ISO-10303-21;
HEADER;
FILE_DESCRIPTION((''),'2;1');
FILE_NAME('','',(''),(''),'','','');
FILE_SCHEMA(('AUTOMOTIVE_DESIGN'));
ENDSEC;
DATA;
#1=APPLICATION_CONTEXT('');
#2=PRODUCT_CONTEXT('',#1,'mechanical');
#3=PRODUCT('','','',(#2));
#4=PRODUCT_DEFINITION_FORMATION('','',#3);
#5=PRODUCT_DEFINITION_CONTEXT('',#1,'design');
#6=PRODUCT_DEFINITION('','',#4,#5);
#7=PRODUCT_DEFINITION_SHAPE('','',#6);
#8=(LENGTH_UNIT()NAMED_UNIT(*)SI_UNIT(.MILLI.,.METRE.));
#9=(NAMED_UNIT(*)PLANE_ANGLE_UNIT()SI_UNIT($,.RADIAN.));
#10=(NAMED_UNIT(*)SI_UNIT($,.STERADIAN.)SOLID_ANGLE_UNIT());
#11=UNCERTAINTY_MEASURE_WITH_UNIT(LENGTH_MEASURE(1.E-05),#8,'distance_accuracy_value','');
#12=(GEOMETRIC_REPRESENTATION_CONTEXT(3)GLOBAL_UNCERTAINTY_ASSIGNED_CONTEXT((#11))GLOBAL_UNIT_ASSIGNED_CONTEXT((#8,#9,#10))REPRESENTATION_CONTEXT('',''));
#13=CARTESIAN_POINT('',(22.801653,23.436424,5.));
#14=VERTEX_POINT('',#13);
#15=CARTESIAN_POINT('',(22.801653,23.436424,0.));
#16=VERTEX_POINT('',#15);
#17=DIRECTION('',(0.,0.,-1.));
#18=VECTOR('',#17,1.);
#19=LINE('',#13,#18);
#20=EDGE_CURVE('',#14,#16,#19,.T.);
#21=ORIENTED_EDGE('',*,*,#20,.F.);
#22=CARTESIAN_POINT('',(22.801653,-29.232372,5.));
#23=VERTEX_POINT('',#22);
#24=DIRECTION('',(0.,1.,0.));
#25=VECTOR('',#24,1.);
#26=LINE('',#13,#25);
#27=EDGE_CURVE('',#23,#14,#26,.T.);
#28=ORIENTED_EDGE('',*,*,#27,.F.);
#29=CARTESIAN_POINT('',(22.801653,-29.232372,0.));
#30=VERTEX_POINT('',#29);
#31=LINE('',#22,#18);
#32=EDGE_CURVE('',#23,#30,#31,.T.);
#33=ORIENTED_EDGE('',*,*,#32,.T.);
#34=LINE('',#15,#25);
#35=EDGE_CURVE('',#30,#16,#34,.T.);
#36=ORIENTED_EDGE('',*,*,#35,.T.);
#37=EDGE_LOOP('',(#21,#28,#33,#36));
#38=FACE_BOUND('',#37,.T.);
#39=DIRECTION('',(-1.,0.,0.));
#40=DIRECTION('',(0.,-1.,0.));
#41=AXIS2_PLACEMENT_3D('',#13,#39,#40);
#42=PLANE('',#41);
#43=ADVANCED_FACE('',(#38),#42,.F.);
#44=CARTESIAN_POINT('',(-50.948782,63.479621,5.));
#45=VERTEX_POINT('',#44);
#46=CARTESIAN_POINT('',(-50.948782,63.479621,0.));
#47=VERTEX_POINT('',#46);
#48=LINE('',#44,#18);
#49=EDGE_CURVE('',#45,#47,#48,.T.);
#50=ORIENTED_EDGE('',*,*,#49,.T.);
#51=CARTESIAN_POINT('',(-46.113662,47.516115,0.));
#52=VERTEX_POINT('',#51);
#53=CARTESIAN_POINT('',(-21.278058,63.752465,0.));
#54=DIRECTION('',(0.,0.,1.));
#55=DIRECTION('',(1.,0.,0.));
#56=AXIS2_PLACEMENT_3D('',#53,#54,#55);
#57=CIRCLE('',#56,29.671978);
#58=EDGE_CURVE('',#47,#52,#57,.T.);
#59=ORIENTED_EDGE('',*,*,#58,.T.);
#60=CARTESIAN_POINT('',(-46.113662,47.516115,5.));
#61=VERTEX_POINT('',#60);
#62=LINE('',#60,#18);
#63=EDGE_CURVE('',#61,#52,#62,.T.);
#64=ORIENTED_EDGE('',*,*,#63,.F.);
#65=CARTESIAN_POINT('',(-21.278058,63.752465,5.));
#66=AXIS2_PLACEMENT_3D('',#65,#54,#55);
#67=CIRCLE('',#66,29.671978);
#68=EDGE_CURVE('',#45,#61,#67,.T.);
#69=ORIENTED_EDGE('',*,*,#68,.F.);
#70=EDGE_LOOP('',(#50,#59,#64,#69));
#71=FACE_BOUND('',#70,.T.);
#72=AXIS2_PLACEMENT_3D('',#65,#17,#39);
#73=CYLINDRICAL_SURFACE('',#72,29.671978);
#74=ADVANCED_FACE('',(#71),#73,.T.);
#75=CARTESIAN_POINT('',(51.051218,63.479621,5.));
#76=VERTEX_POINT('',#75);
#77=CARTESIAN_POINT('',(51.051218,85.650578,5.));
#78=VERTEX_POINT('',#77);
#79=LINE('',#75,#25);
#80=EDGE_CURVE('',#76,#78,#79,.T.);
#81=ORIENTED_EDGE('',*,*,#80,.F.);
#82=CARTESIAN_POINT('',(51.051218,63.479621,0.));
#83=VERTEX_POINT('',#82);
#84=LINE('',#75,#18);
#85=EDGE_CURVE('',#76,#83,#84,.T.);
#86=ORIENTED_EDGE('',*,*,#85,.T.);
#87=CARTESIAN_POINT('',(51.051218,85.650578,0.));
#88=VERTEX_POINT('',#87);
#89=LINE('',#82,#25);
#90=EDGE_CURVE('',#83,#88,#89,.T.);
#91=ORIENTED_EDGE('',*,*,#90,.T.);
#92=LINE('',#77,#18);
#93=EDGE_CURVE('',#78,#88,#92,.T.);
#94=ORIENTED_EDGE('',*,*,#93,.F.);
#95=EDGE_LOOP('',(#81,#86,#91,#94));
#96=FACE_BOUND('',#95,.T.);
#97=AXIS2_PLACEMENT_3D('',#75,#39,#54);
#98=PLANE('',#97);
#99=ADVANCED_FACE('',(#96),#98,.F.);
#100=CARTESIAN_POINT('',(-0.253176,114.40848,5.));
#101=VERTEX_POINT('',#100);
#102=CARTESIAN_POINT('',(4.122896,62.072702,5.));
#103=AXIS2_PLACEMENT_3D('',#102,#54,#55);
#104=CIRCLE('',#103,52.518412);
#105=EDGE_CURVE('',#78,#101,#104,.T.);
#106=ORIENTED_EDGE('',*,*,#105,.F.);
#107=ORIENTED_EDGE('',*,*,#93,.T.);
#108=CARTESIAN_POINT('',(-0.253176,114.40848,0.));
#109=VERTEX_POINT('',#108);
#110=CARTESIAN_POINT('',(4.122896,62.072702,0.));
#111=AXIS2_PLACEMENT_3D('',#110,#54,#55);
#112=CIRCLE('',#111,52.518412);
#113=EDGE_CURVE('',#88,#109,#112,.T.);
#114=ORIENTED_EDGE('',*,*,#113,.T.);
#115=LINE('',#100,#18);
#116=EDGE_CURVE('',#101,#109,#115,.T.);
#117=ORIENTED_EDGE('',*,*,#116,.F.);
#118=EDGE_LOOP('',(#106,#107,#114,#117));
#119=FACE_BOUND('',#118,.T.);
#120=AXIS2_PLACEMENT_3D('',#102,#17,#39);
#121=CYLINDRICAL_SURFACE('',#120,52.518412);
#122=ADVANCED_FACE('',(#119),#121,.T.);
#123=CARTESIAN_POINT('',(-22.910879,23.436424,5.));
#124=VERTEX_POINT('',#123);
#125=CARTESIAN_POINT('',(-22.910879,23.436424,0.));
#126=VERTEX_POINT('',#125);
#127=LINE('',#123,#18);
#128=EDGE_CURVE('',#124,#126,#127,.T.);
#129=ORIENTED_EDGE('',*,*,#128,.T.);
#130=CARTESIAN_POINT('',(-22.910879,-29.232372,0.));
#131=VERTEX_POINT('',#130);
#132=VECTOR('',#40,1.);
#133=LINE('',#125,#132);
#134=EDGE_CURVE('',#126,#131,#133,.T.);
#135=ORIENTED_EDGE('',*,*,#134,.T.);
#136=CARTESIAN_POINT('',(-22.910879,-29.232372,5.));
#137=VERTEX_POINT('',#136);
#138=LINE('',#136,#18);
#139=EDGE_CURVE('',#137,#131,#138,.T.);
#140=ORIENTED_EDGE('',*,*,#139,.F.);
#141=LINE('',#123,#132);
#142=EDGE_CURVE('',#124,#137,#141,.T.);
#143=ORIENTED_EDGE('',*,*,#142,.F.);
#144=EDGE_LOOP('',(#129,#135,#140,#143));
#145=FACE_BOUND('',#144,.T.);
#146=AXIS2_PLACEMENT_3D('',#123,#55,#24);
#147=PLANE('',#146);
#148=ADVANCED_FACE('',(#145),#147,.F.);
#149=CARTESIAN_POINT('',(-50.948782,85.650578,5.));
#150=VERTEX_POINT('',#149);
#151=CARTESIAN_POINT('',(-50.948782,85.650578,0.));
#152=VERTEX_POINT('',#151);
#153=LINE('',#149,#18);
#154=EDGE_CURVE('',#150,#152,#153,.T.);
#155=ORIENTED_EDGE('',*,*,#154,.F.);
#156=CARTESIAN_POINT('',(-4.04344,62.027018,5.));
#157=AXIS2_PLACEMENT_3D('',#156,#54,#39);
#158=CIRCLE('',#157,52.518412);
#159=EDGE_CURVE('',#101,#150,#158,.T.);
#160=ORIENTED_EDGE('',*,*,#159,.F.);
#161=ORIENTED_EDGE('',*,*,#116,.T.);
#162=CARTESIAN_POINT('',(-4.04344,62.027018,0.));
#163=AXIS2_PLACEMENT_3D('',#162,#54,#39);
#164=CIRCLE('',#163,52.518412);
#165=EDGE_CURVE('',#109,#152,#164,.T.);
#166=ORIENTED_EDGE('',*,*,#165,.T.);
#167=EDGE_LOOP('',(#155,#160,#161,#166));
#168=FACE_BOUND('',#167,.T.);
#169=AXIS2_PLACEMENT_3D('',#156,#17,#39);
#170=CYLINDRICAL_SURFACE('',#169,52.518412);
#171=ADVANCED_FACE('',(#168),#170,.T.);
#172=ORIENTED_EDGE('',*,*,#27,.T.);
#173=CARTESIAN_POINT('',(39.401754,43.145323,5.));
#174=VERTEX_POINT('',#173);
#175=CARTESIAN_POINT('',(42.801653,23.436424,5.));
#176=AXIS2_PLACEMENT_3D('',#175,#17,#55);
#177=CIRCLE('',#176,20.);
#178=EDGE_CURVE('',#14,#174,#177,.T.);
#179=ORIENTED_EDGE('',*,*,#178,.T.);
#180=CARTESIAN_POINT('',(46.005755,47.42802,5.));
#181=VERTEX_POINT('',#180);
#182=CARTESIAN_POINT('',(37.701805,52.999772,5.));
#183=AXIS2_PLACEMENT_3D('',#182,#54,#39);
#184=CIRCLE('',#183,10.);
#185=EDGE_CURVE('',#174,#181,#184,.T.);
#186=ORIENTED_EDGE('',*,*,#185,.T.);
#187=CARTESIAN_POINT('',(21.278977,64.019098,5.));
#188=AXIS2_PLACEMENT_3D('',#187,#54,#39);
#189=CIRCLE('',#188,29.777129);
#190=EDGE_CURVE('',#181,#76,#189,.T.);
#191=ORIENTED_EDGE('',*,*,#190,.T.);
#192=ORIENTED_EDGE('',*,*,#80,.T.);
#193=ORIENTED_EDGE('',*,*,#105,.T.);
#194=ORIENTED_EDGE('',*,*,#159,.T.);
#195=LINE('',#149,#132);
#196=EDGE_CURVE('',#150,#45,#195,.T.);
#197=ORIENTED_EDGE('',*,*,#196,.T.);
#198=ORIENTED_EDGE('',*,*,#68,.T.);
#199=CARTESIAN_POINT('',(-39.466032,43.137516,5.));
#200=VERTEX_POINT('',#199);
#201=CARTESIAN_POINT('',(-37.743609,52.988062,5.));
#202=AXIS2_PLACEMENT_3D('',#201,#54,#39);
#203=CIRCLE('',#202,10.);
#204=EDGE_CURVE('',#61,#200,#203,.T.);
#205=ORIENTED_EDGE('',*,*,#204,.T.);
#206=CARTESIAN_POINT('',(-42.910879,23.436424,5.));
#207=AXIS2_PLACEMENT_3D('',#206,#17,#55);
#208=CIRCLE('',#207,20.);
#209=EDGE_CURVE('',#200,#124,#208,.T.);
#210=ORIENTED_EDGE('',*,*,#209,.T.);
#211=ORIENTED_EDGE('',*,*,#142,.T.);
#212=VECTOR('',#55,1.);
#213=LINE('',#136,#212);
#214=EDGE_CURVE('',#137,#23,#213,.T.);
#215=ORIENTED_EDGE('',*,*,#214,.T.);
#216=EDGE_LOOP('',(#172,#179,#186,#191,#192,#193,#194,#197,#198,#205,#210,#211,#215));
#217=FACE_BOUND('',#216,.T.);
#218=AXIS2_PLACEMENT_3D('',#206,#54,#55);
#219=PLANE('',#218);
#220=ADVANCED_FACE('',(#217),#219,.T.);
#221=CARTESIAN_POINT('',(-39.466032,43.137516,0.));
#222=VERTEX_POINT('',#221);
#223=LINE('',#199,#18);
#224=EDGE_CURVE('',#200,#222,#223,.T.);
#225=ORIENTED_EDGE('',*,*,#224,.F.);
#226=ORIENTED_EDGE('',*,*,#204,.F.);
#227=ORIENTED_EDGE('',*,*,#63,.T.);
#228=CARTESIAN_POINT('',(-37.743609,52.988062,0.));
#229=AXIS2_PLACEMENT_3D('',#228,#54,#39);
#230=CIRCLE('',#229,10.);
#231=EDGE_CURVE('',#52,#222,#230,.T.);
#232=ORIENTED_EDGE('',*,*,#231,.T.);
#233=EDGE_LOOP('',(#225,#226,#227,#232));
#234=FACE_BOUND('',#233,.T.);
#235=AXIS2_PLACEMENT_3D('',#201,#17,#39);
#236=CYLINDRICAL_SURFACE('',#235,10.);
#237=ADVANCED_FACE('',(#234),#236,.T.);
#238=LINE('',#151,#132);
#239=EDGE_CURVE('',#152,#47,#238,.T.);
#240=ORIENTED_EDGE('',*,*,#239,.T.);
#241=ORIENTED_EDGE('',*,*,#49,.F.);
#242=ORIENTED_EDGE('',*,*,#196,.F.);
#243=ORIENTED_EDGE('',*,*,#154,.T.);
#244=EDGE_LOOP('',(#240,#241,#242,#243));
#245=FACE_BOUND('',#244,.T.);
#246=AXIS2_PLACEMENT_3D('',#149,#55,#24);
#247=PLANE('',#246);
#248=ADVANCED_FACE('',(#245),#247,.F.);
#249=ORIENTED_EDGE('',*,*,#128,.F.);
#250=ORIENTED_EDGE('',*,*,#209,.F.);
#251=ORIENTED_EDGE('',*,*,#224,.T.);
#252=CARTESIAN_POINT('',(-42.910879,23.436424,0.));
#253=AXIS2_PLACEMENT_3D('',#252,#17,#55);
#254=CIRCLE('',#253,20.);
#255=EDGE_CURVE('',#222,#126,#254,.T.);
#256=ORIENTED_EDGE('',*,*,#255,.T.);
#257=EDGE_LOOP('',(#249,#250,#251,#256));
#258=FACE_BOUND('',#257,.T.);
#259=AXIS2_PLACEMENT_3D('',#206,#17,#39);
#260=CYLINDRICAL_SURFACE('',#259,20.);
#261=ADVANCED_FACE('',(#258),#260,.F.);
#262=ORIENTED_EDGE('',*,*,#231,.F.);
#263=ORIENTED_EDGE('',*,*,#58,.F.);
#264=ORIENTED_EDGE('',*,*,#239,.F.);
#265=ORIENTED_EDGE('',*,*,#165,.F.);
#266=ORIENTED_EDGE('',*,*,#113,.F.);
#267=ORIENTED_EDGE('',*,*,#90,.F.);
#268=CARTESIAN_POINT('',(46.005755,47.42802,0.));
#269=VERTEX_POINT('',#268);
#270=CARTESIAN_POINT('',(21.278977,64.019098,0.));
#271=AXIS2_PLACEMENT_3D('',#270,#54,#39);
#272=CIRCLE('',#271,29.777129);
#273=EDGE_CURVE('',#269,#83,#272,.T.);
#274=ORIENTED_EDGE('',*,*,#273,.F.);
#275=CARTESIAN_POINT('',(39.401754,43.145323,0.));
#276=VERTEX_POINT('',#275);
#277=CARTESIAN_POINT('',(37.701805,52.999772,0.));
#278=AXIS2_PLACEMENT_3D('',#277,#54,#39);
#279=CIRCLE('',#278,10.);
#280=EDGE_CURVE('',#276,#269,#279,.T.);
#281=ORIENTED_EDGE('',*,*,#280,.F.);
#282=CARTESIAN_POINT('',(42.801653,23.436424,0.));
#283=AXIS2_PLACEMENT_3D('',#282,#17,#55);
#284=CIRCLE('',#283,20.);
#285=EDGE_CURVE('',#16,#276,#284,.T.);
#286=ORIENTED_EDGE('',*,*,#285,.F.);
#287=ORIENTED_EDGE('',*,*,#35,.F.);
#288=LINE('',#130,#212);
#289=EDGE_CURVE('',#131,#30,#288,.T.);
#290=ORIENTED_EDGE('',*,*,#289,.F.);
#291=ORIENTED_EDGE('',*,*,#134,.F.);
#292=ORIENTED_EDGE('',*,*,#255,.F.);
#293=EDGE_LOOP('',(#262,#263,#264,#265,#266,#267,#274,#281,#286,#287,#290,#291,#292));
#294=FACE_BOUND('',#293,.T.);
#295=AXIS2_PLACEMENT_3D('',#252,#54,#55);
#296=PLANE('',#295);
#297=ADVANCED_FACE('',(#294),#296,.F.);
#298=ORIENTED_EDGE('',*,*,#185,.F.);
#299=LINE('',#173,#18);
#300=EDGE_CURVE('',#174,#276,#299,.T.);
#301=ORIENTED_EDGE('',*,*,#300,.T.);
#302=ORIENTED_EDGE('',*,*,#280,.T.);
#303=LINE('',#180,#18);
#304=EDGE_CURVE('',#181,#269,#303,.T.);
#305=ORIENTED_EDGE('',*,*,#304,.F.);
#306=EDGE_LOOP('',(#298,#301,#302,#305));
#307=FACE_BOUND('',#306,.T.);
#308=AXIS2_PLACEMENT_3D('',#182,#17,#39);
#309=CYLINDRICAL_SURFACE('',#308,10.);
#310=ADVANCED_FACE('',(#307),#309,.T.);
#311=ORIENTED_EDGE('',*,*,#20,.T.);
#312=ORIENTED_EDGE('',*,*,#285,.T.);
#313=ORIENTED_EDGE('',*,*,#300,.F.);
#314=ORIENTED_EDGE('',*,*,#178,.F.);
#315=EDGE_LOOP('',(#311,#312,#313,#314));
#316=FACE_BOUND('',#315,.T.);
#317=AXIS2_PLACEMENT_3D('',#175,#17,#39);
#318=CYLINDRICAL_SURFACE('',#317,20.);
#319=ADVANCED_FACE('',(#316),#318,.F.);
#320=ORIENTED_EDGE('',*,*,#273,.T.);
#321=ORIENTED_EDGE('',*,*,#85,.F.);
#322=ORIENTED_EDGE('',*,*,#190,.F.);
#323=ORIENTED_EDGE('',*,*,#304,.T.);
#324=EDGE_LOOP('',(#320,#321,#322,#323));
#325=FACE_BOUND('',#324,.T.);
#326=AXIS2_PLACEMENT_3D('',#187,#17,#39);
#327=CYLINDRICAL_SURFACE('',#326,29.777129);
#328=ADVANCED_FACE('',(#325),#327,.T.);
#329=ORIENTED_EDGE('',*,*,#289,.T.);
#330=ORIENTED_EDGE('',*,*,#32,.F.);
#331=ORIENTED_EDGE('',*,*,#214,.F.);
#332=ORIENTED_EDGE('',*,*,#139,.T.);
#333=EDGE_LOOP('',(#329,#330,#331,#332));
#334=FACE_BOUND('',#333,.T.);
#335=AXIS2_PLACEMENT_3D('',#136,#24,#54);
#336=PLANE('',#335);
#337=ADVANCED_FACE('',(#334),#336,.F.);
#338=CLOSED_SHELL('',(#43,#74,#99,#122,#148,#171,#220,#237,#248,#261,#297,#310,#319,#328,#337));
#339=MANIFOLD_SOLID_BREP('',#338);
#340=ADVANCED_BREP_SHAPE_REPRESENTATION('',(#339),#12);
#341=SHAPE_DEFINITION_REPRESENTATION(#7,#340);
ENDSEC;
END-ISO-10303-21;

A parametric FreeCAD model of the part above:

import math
import FreeCAD as App
import Part
import Sketcher

V = App.Vector
Q = App.Units.Quantity

doc = App.newDocument("Part")
body = doc.addObject("PartDesign::Body", "Body")

# Sketch on XY plane
sketch1 = doc.addObject("Sketcher::SketchObject", "Sketch")
body.addObject(sketch1)
sketch1.AttachmentSupport = (doc.XY_Plane, [""])
sketch1.MapMode = "FlatFace"
sketch1.addGeometry(Part.LineSegment(V(51, 63, 0), V(51, 86, 0)), False)
sketch1.addGeometry(Part.ArcOfCircle(Part.Circle(V(4, 62, 0), V(0, 0, 1), 53), math.radians(27), math.radians(95)), False)
sketch1.addGeometry(Part.ArcOfCircle(Part.Circle(V(-4, 62, 0), V(0, 0, 1), 53), math.radians(86), math.radians(153)), False)
sketch1.addGeometry(Part.LineSegment(V(-51, 86, 0), V(-51, 63, 0)), False)
sketch1.addGeometry(Part.ArcOfCircle(Part.Circle(V(-21, 64, 0), V(0, 0, 1), 30), math.radians(-179), math.radians(-147)), False)
sketch1.addGeometry(Part.ArcOfCircle(Part.Circle(V(-38, 53, 0), V(0, 0, 1), 10), math.radians(-147), math.radians(-100)), False)
sketch1.addGeometry(Part.ArcOfCircle(Part.Circle(V(-43, 23, 0), V(0, 0, 1), 20), math.radians(0), math.radians(80)), False)
sketch1.addGeometry(Part.LineSegment(V(-23, 23, 0), V(-23, -29, 0)), False)
sketch1.addGeometry(Part.LineSegment(V(-23, -29, 0), V(23, -29, 0)), False)
sketch1.addGeometry(Part.LineSegment(V(23, -29, 0), V(23, 23, 0)), False)
sketch1.addGeometry(Part.ArcOfCircle(Part.Circle(V(43, 23, 0), V(0, 0, 1), 20), math.radians(100), math.radians(180)), False)
sketch1.addGeometry(Part.ArcOfCircle(Part.Circle(V(38, 53, 0), V(0, 0, 1), 10), math.radians(-80), math.radians(-34)), False)
sketch1.addGeometry(Part.ArcOfCircle(Part.Circle(V(21, 64, 0), V(0, 0, 1), 30), math.radians(-34), math.radians(-1)), False)
sketch1.addConstraint(Sketcher.Constraint("Coincident", 0, 2, 1, 1))
sketch1.addConstraint(Sketcher.Constraint("Coincident", 1, 2, 2, 1))
sketch1.addConstraint(Sketcher.Constraint("Coincident", 2, 2, 3, 1))
sketch1.addConstraint(Sketcher.Constraint("Coincident", 3, 2, 4, 1))
sketch1.addConstraint(Sketcher.Constraint("Tangent", 4, 2, 5, 1))
sketch1.addConstraint(Sketcher.Constraint("Tangent", 5, 2, 6, 2))
sketch1.addConstraint(Sketcher.Constraint("Tangent", 6, 1, 7, 1))
sketch1.addConstraint(Sketcher.Constraint("Coincident", 7, 2, 8, 1))
sketch1.addConstraint(Sketcher.Constraint("Coincident", 8, 2, 9, 1))
sketch1.addConstraint(Sketcher.Constraint("Tangent", 9, 2, 10, 2))
sketch1.addConstraint(Sketcher.Constraint("Tangent", 10, 1, 11, 1))
sketch1.addConstraint(Sketcher.Constraint("Tangent", 11, 2, 12, 1))
sketch1.addConstraint(Sketcher.Constraint("Coincident", 12, 2, 0, 1))
sketch1.addConstraint(Sketcher.Constraint("Vertical", 0))
sketch1.addConstraint(Sketcher.Constraint("Vertical", 3))
sketch1.addConstraint(Sketcher.Constraint("Vertical", 7))
sketch1.addConstraint(Sketcher.Constraint("Horizontal", 8))
sketch1.addConstraint(Sketcher.Constraint("Vertical", 9))
sketch1.addConstraint(Sketcher.Constraint("Equal", 1, 2))
sketch1.addConstraint(Sketcher.Constraint("Equal", 6, 10))
sketch1.addConstraint(Sketcher.Constraint("Equal", 5, 11))
sketch1.addConstraint(Sketcher.Constraint("Horizontal", 6, 3, 10, 3))
sketch1.addConstraint(Sketcher.Constraint("Horizontal", 0, 2, 2, 2))
sketch1.addConstraint(Sketcher.Constraint("Horizontal", 3, 2, 12, 2))
sketch1.addConstraint(Sketcher.Constraint("Radius", 5, Q("10 mm")))
sketch1.addConstraint(Sketcher.Constraint("Radius", 6, Q("20 mm")))
sketch1.addConstraint(Sketcher.Constraint("Radius", 4, Q("29.671978 mm")))
sketch1.addConstraint(Sketcher.Constraint("Radius", 12, Q("29.777129 mm")))
sketch1.addConstraint(Sketcher.Constraint("Radius", 1, Q("52.518412 mm")))
sketch1.addConstraint(Sketcher.Constraint("DistanceX", 10, 1, 11, 2, Q("6.604 mm")))
sketch1.addConstraint(Sketcher.Constraint("DistanceX", 8, 1, 8, 2, Q("45.712531 mm")))
sketch1.addConstraint(Sketcher.Constraint("DistanceY", 0, 2, 1, 2, Q("28.757902 mm")))
sketch1.addConstraint(Sketcher.Constraint("DistanceY", 5, 2, 4, 2, Q("4.378599 mm")))
sketch1.addConstraint(Sketcher.Constraint("DistanceX", 10, 1, 10, 3, Q("3.399898 mm")))
sketch1.addConstraint(Sketcher.Constraint("DistanceY", 11, 2, 12, 2, Q("16.0516 mm")))
sketch1.addConstraint(Sketcher.Constraint("DistanceY", 0, 1, 0, 2, Q("22.170957 mm")))
sketch1.addConstraint(Sketcher.Constraint("DistanceY", 7, 2, 7, 1, Q("52.668796 mm")))
sketch1.addConstraint(Sketcher.Constraint("DistanceX", 2, 3, -1, 1, Q("4.04344 mm")))
sketch1.addConstraint(Sketcher.Constraint("DistanceY", -1, 1, 2, 3, Q("62.027018 mm")))
sketch1.addConstraint(Sketcher.Constraint("DistanceX", 5, 3, -1, 1, Q("37.743609 mm")))
sketch1.addConstraint(Sketcher.Constraint("DistanceX", 6, 3, -1, 1, Q("42.910879 mm")))
pad1 = doc.addObject("PartDesign::Pad", "Pad")
body.addObject(pad1)
pad1.Profile = sketch1
pad1.Length = 5

doc.recompute()
